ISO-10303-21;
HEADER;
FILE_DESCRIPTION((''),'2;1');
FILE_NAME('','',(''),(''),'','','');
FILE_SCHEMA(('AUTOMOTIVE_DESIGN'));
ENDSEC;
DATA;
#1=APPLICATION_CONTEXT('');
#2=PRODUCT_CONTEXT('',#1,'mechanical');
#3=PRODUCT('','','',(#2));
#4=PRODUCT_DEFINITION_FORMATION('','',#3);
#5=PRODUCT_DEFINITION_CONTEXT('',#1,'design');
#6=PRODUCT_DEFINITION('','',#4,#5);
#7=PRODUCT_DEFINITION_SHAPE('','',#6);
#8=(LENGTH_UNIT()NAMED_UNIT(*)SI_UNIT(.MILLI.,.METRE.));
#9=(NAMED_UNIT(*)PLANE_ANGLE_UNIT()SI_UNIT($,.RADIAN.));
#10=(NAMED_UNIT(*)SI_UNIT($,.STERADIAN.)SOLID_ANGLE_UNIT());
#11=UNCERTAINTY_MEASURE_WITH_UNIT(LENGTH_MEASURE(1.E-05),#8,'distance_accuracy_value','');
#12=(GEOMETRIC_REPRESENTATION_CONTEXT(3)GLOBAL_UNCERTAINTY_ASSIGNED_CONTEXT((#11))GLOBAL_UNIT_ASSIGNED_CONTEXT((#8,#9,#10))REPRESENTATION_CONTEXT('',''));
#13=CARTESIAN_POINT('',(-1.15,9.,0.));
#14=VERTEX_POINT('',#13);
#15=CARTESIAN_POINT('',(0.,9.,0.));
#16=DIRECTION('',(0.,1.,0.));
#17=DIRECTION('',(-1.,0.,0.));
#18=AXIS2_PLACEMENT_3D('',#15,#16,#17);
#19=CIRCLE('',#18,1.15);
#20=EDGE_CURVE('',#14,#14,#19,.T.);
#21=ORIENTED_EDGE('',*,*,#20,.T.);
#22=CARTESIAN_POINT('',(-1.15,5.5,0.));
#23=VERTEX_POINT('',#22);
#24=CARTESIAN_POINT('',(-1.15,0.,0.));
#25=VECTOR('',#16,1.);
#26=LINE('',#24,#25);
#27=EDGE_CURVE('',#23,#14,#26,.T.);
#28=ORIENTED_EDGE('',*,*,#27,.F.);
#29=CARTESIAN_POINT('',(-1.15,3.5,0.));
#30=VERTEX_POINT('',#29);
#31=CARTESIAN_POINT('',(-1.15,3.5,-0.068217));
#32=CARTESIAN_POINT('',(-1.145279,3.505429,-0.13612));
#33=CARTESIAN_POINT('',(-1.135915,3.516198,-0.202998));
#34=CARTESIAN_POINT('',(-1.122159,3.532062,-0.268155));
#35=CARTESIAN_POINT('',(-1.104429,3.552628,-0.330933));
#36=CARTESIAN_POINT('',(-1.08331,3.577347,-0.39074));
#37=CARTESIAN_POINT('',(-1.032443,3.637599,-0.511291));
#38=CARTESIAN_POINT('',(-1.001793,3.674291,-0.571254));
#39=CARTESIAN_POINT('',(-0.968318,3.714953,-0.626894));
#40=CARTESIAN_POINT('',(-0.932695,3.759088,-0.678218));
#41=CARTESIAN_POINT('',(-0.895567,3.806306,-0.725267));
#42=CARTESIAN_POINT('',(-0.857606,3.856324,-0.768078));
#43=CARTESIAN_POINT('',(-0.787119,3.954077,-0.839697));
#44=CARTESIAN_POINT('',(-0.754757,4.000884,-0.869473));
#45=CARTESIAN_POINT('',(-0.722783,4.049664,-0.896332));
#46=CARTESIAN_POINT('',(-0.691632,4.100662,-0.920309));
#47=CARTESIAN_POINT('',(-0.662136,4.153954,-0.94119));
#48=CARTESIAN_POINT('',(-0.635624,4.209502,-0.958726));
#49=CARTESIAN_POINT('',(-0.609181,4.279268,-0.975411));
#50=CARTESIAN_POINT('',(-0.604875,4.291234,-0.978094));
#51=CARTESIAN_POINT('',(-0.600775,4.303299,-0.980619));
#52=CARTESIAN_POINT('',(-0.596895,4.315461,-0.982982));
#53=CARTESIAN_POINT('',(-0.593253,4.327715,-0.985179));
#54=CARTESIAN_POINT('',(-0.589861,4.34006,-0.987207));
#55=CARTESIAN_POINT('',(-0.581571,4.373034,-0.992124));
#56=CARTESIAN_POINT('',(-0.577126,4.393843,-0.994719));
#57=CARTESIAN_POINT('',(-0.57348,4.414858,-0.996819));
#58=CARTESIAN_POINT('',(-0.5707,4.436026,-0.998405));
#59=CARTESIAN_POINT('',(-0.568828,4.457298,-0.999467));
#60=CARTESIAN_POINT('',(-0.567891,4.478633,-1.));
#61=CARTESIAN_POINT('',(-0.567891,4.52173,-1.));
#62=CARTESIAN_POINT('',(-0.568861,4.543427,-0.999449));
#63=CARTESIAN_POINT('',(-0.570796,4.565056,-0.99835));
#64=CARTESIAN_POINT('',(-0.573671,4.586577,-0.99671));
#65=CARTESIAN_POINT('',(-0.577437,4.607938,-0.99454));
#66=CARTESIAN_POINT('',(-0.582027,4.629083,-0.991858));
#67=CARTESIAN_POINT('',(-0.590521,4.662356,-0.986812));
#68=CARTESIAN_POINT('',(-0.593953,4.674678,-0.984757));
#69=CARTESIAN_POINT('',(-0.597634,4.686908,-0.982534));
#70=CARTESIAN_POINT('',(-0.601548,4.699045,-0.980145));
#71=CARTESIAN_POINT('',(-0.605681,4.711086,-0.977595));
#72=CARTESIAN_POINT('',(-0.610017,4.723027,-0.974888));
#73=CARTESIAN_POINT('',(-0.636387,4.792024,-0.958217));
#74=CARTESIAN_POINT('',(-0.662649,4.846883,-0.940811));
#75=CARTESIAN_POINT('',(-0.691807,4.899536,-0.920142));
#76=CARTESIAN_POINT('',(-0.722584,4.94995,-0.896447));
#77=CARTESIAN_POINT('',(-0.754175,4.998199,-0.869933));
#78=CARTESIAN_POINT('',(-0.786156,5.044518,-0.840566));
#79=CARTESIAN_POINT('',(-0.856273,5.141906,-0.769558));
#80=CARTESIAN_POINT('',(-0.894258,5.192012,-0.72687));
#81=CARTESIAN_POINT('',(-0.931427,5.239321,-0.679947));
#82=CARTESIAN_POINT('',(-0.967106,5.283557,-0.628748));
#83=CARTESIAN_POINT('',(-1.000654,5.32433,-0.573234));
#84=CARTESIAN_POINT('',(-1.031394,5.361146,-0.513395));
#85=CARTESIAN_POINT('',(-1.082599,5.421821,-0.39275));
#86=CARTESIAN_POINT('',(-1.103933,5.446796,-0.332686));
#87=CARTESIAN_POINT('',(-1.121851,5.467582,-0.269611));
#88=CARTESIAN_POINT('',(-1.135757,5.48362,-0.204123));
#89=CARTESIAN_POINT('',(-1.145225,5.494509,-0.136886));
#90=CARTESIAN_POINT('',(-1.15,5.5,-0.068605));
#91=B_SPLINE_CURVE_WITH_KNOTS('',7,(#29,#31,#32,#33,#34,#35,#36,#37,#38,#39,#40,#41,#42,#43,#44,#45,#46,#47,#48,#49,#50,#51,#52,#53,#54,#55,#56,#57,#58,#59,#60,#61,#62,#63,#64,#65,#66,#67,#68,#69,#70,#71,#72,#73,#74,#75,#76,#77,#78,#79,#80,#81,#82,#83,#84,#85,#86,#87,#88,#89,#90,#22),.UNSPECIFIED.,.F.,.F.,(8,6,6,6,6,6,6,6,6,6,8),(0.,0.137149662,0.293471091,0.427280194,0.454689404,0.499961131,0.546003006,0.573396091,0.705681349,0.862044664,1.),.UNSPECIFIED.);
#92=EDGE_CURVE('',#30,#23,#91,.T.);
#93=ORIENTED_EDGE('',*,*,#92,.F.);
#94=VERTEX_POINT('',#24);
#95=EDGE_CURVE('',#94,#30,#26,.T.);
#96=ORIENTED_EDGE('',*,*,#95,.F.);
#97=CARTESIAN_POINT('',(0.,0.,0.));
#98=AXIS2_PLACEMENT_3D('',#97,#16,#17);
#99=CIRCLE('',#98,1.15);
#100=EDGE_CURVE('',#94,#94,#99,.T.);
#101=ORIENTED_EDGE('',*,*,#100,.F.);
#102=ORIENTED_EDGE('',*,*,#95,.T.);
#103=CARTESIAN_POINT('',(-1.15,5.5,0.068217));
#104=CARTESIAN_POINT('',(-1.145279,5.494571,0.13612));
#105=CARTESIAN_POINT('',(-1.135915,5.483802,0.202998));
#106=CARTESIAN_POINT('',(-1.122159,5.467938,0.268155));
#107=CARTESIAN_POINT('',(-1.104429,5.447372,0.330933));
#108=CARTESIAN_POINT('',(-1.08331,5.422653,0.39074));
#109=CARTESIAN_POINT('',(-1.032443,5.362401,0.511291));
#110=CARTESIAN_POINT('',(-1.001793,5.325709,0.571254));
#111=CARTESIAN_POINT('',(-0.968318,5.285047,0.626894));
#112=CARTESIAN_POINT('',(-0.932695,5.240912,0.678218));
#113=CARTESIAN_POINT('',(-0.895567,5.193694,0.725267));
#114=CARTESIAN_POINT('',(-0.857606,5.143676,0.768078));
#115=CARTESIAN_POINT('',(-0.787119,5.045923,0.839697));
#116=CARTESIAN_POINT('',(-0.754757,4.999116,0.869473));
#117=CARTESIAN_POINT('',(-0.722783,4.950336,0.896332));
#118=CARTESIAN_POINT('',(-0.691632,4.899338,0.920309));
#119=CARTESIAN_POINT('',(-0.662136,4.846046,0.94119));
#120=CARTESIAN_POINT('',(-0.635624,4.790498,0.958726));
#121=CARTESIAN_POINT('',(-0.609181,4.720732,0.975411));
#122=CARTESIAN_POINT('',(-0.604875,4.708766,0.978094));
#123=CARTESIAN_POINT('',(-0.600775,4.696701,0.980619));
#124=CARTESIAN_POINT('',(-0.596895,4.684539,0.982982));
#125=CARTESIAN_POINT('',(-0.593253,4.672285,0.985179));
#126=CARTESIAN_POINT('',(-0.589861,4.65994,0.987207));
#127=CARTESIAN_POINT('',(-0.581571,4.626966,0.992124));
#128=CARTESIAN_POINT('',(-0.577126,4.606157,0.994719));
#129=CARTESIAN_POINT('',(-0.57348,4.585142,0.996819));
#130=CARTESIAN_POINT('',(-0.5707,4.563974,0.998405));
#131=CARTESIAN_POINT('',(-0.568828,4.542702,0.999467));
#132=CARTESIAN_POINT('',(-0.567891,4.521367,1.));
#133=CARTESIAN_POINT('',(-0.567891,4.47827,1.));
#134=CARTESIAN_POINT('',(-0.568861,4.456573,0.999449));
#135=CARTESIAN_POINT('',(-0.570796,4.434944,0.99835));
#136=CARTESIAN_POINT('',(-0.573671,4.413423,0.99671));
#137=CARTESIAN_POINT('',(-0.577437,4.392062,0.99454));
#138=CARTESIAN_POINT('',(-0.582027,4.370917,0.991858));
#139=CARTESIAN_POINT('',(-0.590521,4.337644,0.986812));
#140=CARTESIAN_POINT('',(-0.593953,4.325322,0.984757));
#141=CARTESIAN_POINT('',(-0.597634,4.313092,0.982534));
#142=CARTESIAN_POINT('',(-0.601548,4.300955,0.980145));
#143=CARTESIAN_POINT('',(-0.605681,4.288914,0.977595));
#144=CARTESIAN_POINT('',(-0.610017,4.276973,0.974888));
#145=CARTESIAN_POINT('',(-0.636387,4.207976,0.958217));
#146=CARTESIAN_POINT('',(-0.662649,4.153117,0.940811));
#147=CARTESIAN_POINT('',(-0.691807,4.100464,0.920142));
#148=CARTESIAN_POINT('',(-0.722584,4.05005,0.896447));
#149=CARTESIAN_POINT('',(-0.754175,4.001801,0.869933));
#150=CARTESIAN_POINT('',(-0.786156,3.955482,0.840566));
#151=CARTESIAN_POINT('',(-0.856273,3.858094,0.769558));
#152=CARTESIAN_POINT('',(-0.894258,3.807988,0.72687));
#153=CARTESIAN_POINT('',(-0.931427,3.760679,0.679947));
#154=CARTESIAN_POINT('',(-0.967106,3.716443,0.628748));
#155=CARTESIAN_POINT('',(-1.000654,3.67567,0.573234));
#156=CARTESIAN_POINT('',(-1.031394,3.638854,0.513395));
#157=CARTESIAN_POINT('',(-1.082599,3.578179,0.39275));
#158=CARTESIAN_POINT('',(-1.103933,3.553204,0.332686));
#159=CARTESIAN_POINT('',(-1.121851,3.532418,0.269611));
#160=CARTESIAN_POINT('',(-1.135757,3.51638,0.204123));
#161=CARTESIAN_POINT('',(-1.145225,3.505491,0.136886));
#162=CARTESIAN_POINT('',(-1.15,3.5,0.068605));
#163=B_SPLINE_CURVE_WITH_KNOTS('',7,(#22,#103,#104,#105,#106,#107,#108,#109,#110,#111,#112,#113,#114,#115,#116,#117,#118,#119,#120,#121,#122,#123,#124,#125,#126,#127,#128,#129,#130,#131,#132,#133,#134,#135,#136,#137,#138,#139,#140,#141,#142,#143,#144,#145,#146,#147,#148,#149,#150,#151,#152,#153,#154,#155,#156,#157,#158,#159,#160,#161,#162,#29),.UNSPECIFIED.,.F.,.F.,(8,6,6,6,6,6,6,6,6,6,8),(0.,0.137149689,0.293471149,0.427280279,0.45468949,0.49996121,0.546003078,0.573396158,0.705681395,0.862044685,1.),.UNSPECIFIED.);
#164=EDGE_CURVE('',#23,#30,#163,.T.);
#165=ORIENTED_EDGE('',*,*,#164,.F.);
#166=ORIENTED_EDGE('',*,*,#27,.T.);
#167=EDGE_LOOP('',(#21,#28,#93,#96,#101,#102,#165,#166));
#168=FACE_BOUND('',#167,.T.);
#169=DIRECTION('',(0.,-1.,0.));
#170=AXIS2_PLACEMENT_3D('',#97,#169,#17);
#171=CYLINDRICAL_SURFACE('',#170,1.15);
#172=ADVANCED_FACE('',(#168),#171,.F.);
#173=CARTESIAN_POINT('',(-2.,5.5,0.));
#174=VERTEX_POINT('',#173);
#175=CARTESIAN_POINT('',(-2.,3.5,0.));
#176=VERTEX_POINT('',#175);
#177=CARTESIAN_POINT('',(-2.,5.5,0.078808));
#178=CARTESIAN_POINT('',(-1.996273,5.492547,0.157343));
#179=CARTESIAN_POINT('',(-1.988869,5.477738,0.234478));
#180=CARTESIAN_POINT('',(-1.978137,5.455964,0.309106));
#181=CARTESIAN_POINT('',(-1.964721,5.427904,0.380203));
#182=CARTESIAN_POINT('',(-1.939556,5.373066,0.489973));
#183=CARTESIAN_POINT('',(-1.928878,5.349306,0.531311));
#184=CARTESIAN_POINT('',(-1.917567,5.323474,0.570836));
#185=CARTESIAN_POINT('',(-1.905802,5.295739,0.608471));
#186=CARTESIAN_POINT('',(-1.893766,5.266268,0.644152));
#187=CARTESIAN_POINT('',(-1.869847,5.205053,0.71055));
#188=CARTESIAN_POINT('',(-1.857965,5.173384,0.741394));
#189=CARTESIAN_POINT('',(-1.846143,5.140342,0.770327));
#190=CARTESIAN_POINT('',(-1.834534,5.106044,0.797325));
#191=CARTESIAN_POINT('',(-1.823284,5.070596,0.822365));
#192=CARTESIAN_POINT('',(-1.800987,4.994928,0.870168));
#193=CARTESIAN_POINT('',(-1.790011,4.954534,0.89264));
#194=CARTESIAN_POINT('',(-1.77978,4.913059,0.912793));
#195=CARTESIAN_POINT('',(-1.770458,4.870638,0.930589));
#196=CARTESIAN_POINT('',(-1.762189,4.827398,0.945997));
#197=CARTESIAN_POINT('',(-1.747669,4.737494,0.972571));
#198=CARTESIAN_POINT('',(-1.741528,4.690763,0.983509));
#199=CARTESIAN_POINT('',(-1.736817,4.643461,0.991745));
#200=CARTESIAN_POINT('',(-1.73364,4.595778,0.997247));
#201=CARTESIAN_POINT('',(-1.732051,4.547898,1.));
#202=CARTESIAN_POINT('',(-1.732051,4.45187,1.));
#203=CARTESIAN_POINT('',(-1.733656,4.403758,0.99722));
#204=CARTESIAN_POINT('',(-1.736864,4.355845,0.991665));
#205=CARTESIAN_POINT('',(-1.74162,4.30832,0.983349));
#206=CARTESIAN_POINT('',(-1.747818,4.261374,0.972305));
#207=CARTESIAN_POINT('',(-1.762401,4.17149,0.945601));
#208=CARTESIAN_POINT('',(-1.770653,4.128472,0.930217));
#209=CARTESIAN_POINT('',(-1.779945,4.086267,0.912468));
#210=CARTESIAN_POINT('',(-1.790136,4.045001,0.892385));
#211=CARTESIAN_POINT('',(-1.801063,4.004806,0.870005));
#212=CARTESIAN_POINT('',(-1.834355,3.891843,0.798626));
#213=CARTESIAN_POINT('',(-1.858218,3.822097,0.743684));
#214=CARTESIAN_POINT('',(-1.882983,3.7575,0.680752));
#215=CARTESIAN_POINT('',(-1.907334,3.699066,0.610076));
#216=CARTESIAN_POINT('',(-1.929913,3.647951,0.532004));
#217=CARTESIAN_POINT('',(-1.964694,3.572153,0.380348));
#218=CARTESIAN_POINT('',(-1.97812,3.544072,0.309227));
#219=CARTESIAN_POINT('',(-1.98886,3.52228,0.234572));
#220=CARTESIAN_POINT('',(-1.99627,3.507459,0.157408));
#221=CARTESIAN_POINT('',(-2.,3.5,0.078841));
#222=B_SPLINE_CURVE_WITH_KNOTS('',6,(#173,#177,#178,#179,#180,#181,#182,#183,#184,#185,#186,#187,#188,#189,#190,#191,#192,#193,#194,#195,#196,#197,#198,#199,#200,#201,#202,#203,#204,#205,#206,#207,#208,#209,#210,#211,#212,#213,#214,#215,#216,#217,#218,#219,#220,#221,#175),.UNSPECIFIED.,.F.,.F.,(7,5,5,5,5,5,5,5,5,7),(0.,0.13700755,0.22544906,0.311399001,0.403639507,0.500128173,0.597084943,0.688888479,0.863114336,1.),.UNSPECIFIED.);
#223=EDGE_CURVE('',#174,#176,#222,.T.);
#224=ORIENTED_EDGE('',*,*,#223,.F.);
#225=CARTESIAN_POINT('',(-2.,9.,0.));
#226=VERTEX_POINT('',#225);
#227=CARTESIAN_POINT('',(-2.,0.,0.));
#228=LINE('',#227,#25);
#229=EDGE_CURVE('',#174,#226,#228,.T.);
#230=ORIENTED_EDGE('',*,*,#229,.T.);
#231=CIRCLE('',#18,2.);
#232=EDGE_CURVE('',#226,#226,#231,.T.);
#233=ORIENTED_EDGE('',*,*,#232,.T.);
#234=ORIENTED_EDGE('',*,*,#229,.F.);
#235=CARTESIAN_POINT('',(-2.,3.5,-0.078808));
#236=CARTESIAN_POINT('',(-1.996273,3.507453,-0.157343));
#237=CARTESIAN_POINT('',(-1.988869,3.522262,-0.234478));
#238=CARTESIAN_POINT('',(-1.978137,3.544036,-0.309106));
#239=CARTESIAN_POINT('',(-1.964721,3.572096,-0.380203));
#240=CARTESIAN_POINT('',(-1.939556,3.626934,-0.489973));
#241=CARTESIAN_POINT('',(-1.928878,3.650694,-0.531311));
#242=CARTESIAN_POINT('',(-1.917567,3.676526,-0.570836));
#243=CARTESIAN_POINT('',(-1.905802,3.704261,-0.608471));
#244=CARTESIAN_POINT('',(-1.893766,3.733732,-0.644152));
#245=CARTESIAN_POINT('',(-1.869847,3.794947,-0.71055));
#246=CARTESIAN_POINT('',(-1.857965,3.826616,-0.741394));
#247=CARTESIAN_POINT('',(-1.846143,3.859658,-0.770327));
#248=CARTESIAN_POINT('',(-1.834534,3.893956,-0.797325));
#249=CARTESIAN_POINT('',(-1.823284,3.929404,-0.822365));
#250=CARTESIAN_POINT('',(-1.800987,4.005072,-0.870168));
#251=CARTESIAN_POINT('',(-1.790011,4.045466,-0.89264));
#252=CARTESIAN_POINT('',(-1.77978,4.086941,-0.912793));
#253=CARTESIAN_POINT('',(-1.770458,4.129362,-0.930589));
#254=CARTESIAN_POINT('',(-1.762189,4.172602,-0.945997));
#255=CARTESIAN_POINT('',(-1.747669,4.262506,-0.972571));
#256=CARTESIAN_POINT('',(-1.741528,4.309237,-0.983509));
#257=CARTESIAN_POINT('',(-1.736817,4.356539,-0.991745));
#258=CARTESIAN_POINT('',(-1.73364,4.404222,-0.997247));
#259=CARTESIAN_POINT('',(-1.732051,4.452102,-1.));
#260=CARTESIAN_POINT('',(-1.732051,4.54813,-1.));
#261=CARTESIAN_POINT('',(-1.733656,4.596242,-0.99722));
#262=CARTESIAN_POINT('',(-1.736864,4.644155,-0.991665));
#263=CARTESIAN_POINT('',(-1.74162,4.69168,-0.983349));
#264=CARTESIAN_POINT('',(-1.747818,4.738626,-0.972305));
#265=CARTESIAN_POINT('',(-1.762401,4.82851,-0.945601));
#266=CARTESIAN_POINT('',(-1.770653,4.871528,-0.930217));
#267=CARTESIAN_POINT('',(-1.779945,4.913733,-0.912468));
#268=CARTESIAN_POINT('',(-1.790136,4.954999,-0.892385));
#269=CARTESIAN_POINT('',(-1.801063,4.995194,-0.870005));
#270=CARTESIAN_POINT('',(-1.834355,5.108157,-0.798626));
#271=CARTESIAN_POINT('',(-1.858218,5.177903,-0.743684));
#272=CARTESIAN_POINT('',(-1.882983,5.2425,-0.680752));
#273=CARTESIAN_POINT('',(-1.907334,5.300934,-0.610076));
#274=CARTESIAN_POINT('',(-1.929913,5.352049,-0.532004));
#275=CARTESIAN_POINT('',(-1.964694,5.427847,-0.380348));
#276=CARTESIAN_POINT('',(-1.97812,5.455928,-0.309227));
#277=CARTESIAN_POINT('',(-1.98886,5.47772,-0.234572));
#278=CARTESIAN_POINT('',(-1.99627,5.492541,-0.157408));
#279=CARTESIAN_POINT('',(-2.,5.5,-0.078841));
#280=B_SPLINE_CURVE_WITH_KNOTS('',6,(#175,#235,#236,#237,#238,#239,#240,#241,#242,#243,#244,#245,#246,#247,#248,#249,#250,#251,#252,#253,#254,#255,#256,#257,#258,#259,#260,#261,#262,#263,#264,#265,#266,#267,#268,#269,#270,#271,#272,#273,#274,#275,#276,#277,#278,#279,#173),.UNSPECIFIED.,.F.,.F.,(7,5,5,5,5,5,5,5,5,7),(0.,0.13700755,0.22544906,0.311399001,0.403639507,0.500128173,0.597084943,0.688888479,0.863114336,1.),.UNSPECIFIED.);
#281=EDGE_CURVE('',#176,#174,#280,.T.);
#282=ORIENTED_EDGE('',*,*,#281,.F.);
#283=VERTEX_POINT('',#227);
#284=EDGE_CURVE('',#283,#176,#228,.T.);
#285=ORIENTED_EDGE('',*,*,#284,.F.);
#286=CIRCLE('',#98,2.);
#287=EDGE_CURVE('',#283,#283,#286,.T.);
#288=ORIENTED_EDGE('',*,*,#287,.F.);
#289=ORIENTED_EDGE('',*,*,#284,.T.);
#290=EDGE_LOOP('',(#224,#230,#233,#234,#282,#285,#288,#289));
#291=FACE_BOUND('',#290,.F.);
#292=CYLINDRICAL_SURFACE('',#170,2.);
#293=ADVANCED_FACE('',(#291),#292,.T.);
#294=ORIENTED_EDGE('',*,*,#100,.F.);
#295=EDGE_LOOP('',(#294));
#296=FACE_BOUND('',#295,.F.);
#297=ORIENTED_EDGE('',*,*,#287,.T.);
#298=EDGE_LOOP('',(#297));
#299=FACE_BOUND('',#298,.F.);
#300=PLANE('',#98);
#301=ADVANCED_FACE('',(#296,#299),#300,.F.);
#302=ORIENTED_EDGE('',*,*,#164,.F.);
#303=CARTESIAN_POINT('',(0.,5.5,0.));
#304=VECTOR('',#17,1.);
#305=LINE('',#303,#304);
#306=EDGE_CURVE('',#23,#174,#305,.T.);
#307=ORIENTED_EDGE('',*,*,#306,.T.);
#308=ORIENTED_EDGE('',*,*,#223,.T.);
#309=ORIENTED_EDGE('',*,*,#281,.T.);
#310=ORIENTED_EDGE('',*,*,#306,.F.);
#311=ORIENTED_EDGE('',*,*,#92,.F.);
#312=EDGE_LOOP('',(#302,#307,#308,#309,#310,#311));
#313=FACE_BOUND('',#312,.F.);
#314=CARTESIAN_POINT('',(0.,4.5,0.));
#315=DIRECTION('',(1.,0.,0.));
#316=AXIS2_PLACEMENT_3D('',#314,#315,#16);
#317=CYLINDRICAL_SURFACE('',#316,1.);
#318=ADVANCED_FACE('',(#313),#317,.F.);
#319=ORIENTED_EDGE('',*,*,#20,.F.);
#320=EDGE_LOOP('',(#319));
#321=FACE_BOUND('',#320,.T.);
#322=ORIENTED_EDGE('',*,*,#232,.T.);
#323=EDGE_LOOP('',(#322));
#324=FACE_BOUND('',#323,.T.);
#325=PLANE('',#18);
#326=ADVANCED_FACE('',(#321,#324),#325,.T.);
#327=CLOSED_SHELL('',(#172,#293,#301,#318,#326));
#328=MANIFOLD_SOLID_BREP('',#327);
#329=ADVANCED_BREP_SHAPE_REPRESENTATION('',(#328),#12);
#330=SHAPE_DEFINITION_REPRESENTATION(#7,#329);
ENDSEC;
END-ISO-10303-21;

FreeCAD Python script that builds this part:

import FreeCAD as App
import Part
import Sketcher
Q = App.Units.Quantity

doc = App.newDocument("Part")
body = doc.addObject("PartDesign::Body", "Body")

# Sketch on XZ plane
sketch1 = doc.addObject("Sketcher::SketchObject", "Sketch")
body.addObject(sketch1)
sketch1.AttachmentSupport = (doc.XZ_Plane, [""])
sketch1.MapMode = "FlatFace"
sketch1.addGeometry(Part.Circle(App.Vector(0, 0, 0), App.Vector(0, 0, 1), 2), False)
sketch1.addGeometry(Part.Circle(App.Vector(0, 0, 0), App.Vector(0, 0, 1), 1.1), False)
sketch1.addConstraint(Sketcher.Constraint("Coincident", 0, 3, -1, 1))
sketch1.addConstraint(Sketcher.Constraint("Coincident", 1, 3, -1, 1))
sketch1.addConstraint(Sketcher.Constraint("Diameter", 0, Q("4 mm")))
sketch1.addConstraint(Sketcher.Constraint("Diameter", 1, Q("2.3 mm")))
pad1 = doc.addObject("PartDesign::Pad", "Pad")
body.addObject(pad1)
pad1.Profile = sketch1
pad1.Length = 9
pad1.Reversed = True

# Sketch on YZ plane
sketch2 = doc.addObject("Sketcher::SketchObject", "Sketch001")
body.addObject(sketch2)
sketch2.AttachmentSupport = (doc.YZ_Plane, [""])
sketch2.MapMode = "FlatFace"
sketch2.addGeometry(Part.Circle(App.Vector(4.5, 0, 0), App.Vector(0, 0, 1), 1), False)
sketch2.addConstraint(Sketcher.Constraint("PointOnObject", 0, 3, -1))
sketch2.addConstraint(Sketcher.Constraint("Diameter", 0, Q("2 mm")))
sketch2.addConstraint(Sketcher.Constraint("DistanceX", -1, 1, 0, 3, Q("4.5 mm")))
pocket1 = doc.addObject("PartDesign::Pocket", "Pocket")
body.addObject(pocket1)
pocket1.Profile = sketch2
pocket1.Length = 9

doc.recompute()
